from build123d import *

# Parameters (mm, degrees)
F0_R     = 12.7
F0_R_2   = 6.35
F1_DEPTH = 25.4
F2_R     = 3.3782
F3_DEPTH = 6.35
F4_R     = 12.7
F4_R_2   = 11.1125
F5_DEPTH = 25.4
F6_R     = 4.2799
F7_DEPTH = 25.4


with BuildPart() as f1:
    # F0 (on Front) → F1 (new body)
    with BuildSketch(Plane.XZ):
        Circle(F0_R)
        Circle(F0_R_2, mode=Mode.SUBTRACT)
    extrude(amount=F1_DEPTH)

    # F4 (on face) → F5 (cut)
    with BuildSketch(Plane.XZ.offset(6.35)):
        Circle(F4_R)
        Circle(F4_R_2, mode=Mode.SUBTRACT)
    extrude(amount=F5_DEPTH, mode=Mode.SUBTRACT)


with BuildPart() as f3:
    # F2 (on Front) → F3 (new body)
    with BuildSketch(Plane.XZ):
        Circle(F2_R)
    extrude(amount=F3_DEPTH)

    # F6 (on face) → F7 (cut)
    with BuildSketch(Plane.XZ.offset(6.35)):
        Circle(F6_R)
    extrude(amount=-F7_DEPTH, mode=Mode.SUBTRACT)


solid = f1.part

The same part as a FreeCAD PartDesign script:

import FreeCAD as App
import Part
import Sketcher
from FreeCAD import Vector
Q = App.Units.Quantity

doc = App.newDocument("Part")
params = doc.addObject("Spreadsheet::Sheet", "Params")
for row, (alias, value) in enumerate([
    ("sketch1_diameter", "1 in"),
    ("sketch1_diameter2", "0.5 in"),
    ("pad1_length", "1 in"),
    ("sketch2_diameter", "1 in"),
    ("sketch2_diameter2", "0.875 in"),
    ("pocket1_length", "1 in"),
    ("sketch3_diameter", "0.266 in"),
    ("pad2_length", "0.25 in"),
    ("sketch4_diameter", "0.337 in"),
    ("pocket2_length", "1 in"),
], start=1):
    params.set(f"A{row}", alias)
    params.set(f"B{row}", "=" + value)
    params.setAlias(f"B{row}", alias)

body = doc.addObject("PartDesign::Body", "Body")

# Sketch on XZ plane
sketch1 = doc.addObject("Sketcher::SketchObject", "Sketch")
body.addObject(sketch1)
sketch1.AttachmentSupport = (doc.XZ_Plane, [""])
sketch1.MapMode = "FlatFace"
sketch1.addGeometry([
    Part.Circle(Vector(0, 0, 0), Vector(0, 0, 1), 13),
    Part.Circle(Vector(0, 0, 0), Vector(0, 0, 1), 6),
], False)
sketch1.addConstraint([
    Sketcher.Constraint("Coincident", 0, 3, -1, 1),
    Sketcher.Constraint("Coincident", 1, 3, -1, 1),
    Sketcher.Constraint("Diameter", 0, Q("1 in")),
    Sketcher.Constraint("Diameter", 1, Q("0.5 in")),
])
sketch1.setExpression("Constraints[2]", "Params.sketch1_diameter")
sketch1.setExpression("Constraints[3]", "Params.sketch1_diameter2")
pad1 = doc.addObject("PartDesign::Pad", "Pad")
body.addObject(pad1)
pad1.Profile = sketch1
pad1.setExpression("Length", "Params.pad1_length")

# Sketch on XZ plane
sketch2 = doc.addObject("Sketcher::SketchObject", "Sketch001")
body.addObject(sketch2)
sketch2.AttachmentSupport = (doc.XZ_Plane, [""])
sketch2.MapMode = "FlatFace"
sketch2.AttachmentOffset = App.Placement(Vector(0, 0, 0.25 * 25.4), App.Rotation())
sketch2.addGeometry([
    Part.Circle(Vector(0, 0, 0), Vector(0, 0, 1), 13),
    Part.Circle(Vector(0, 0, 0), Vector(0, 0, 1), 11),
], False)
sketch2.addConstraint([
    Sketcher.Constraint("Coincident", 0, 3, -1, 1),
    Sketcher.Constraint("Coincident", 1, 3, -1, 1),
    Sketcher.Constraint("Diameter", 0, Q("1 in")),
    Sketcher.Constraint("Diameter", 1, Q("0.875 in")),
])
sketch2.setExpression("Constraints[2]", "Params.sketch2_diameter")
sketch2.setExpression("Constraints[3]", "Params.sketch2_diameter2")
pocket1 = doc.addObject("PartDesign::Pocket", "Pocket")
body.addObject(pocket1)
pocket1.Profile = sketch2
pocket1.setExpression("Length", "Params.pocket1_length")
pocket1.Reversed = True
body2 = doc.addObject("PartDesign::Body", "Body001")

# Sketch on XZ plane
sketch3 = doc.addObject("Sketcher::SketchObject", "Sketch002")
body2.addObject(sketch3)
sketch3.AttachmentSupport = (doc.getObject("XZ_Plane001"), [""])
sketch3.MapMode = "FlatFace"
sketch3.addGeometry(Part.Circle(Vector(0, 0, 0), Vector(0, 0, 1), 3.4), False)
sketch3.addConstraint([
    Sketcher.Constraint("Coincident", 0, 3, -1, 1),
    Sketcher.Constraint("Diameter", 0, Q("0.266 in")),
])
sketch3.setExpression("Constraints[1]", "Params.sketch3_diameter")
pad2 = doc.addObject("PartDesign::Pad", "Pad001")
body2.addObject(pad2)
pad2.Profile = sketch3
pad2.setExpression("Length", "Params.pad2_length")

# Sketch on XZ plane
sketch4 = doc.addObject("Sketcher::SketchObject", "Sketch003")
body2.addObject(sketch4)
sketch4.AttachmentSupport = (doc.getObject("XZ_Plane001"), [""])
sketch4.MapMode = "FlatFace"
sketch4.AttachmentOffset = App.Placement(Vector(0, 0, 0.25 * 25.4), App.Rotation())
sketch4.addGeometry(Part.Circle(Vector(0, 0, 0), Vector(0, 0, 1), 4.3), False)
sketch4.addConstraint([
    Sketcher.Constraint("Coincident", 0, 3, -1, 1),
    Sketcher.Constraint("Diameter", 0, Q("0.337 in")),
])
sketch4.setExpression("Constraints[1]", "Params.sketch4_diameter")
pocket2 = doc.addObject("PartDesign::Pocket", "Pocket001")
body2.addObject(pocket2)
pocket2.Profile = sketch4
pocket2.setExpression("Length", "Params.pocket2_length")

doc.recompute()
